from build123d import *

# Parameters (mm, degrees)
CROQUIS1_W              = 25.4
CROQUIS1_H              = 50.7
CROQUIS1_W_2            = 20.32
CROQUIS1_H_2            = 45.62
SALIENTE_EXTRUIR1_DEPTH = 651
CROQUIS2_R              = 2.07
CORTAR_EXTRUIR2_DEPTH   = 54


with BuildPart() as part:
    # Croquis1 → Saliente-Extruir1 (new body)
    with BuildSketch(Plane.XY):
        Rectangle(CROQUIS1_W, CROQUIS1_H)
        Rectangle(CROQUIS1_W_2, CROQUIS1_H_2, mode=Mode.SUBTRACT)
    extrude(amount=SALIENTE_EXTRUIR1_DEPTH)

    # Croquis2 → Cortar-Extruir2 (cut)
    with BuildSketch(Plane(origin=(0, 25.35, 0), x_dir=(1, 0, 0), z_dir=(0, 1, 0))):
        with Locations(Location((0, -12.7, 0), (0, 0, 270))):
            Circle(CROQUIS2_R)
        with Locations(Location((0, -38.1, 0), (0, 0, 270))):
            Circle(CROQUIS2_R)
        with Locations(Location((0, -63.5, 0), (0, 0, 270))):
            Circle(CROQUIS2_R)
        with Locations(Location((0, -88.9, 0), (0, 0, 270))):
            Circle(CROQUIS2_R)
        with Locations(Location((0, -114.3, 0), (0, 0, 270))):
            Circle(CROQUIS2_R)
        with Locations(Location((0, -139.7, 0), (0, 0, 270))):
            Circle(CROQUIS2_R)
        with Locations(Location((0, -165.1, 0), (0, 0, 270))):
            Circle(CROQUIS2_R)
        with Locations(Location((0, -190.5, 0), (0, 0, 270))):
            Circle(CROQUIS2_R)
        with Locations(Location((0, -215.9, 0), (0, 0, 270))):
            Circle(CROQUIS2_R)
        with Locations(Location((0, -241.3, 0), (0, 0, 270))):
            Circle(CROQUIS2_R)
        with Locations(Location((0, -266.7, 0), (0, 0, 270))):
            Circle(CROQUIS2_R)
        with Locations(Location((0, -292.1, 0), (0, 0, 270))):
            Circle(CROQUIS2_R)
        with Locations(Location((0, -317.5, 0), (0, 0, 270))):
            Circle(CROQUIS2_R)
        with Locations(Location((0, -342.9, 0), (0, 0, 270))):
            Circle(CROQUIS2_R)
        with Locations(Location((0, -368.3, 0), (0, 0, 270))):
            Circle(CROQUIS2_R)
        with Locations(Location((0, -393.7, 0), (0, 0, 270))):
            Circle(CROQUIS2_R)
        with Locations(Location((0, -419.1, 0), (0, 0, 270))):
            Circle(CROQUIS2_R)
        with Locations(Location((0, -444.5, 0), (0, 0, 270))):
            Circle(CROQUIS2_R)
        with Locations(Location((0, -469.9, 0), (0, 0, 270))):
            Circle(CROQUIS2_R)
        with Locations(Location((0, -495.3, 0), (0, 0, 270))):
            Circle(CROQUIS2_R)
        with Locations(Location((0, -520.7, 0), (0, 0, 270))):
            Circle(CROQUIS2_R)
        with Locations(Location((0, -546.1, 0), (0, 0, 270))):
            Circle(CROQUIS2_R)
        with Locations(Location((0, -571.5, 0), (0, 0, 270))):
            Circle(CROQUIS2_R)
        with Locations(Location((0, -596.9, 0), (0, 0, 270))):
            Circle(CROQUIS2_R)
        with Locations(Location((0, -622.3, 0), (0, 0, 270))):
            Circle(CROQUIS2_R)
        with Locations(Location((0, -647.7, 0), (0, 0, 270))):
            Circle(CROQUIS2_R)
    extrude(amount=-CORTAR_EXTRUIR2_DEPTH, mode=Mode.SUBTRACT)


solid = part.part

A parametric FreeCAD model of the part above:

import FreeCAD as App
import Part
import Sketcher

V = App.Vector


def add_polygon(sketch, points):
    """Adds a closed chain of lines whose ends are joined by coincident constraints."""
    first, n = sketch.GeometryCount, len(points)
    for a, b in zip(points, points[1:] + points[:1]):
        sketch.addGeometry(Part.LineSegment(App.Vector(*a, 0), App.Vector(*b, 0)), False)
    for i in range(n):
        sketch.addConstraint(Sketcher.Constraint("Coincident", first + i, 2, first + (i + 1) % n, 1))

doc = App.newDocument("Part")
params = doc.addObject("Spreadsheet::Sheet", "Params")
for row, (alias, value) in enumerate([
    ("sketch1_width", "25.4 mm"),
    ("sketch1_height", "50.7 mm"),
    ("sketch1_width2", "20.32 mm"),
    ("sketch1_height2", "45.62 mm"),
    ("pad1_length", "651 mm"),
    ("sketch2_diameter", "4.14 mm"),
    ("pocket1_length", "54 mm"),
], start=1):
    params.set(f"A{row}", alias)
    params.set(f"B{row}", "=" + value)
    params.setAlias(f"B{row}", alias)

body = doc.addObject("PartDesign::Body", "Body")

sketch1 = doc.addObject("Sketcher::SketchObject", "Sketch")
body.addObject(sketch1)
sketch1.AttachmentSupport = (doc.XY_Plane, [""])
sketch1.MapMode = "FlatFace"
add_polygon(sketch1, [(-12.7, 25.35), (-12.7, -25.35), (12.7, -25.35), (12.7, 25.35)])
add_polygon(sketch1, [(10.16, -22.81), (-10.16, -22.81), (-10.16, 22.81), (10.16, 22.81)])
sketch1.addConstraint([
    Sketcher.Constraint("Vertical", 0),
    Sketcher.Constraint("Horizontal", 1),
    Sketcher.Constraint("Vertical", 2),
    Sketcher.Constraint("Horizontal", 3),
    Sketcher.Constraint("Horizontal", 4),
    Sketcher.Constraint("Vertical", 5),
    Sketcher.Constraint("Horizontal", 6),
    Sketcher.Constraint("Vertical", 7),
    Sketcher.Constraint("Symmetric", 0, 2, 2, 2, -1, 1),
    Sketcher.Constraint("Symmetric", 4, 2, 6, 2, -1, 1),
    Sketcher.Constraint("DistanceX", 1, 1, 1, 2, 25.4),
    Sketcher.Constraint("DistanceY", 0, 2, 0, 1, 50.7),
    Sketcher.Constraint("DistanceX", 4, 2, 4, 1, 20.32),
    Sketcher.Constraint("DistanceY", 5, 1, 5, 2, 45.62),
])
sketch1.setExpression("Constraints[18]", "Params.sketch1_width")
sketch1.setExpression("Constraints[19]", "Params.sketch1_height")
sketch1.setExpression("Constraints[20]", "Params.sketch1_width2")
sketch1.setExpression("Constraints[21]", "Params.sketch1_height2")
pad1 = doc.addObject("PartDesign::Pad", "Pad")
body.addObject(pad1)
pad1.Profile = sketch1
pad1.setExpression("Length", "Params.pad1_length")

sketch2 = doc.addObject("Sketcher::SketchObject", "Sketch001")
body.addObject(sketch2)
sketch2.AttachmentSupport = (doc.XZ_Plane, [""])
sketch2.MapMode = "FlatFace"
sketch2.AttachmentOffset = App.Placement(V(0, 0, -25.35), App.Rotation())
sketch2.addGeometry([
    Part.Circle(V(0, 12.7, 0), V(0, 0, 1), 2.07),
    Part.Circle(V(0, 38.1, 0), V(0, 0, 1), 2.07),
    Part.Circle(V(0, 63.5, 0), V(0, 0, 1), 2.07),
    Part.Circle(V(0, 88.9, 0), V(0, 0, 1), 2.07),
    Part.Circle(V(0, 114.3, 0), V(0, 0, 1), 2.07),
    Part.Circle(V(0, 139.7, 0), V(0, 0, 1), 2.07),
    Part.Circle(V(0, 165.1, 0), V(0, 0, 1), 2.07),
    Part.Circle(V(0, 190.5, 0), V(0, 0, 1), 2.07),
    Part.Circle(V(0, 215.9, 0), V(0, 0, 1), 2.07),
    Part.Circle(V(0, 241.3, 0), V(0, 0, 1), 2.07),
    Part.Circle(V(0, 266.7, 0), V(0, 0, 1), 2.07),
    Part.Circle(V(0, 292.1, 0), V(0, 0, 1), 2.07),
    Part.Circle(V(0, 317.5, 0), V(0, 0, 1), 2.07),
    Part.Circle(V(0, 342.9, 0), V(0, 0, 1), 2.07),
    Part.Circle(V(0, 368.3, 0), V(0, 0, 1), 2.07),
    Part.Circle(V(0, 393.7, 0), V(0, 0, 1), 2.07),
    Part.Circle(V(0, 419.1, 0), V(0, 0, 1), 2.07),
    Part.Circle(V(0, 444.5, 0), V(0, 0, 1), 2.07),
    Part.Circle(V(0, 469.9, 0), V(0, 0, 1), 2.07),
    Part.Circle(V(0, 495.3, 0), V(0, 0, 1), 2.07),
    Part.Circle(V(0, 520.7, 0), V(0, 0, 1), 2.07),
    Part.Circle(V(0, 546.1, 0), V(0, 0, 1), 2.07),
    Part.Circle(V(0, 571.5, 0), V(0, 0, 1), 2.07),
    Part.Circle(V(0, 596.9, 0), V(0, 0, 1), 2.07),
    Part.Circle(V(0, 622.3, 0), V(0, 0, 1), 2.07),
    Part.Circle(V(0, 647.7, 0), V(0, 0, 1), 2.07),
], False)
sketch2.addConstraint([
    Sketcher.Constraint("Equal", 0, 1),
    Sketcher.Constraint("Equal", 1, 2),
    Sketcher.Constraint("Equal", 2, 3),
    Sketcher.Constraint("Equal", 3, 4),
    Sketcher.Constraint("Equal", 4, 5),
    Sketcher.Constraint("Equal", 5, 6),
    Sketcher.Constraint("Equal", 6, 7),
    Sketcher.Constraint("Equal", 7, 8),
    Sketcher.Constraint("Equal", 8, 9),
    Sketcher.Constraint("Equal", 9, 10),
    Sketcher.Constraint("Equal", 10, 11),
    Sketcher.Constraint("Equal", 11, 12),
    Sketcher.Constraint("Equal", 12, 13),
    Sketcher.Constraint("Equal", 13, 14),
    Sketcher.Constraint("Equal", 14, 15),
    Sketcher.Constraint("Equal", 15, 16),
    Sketcher.Constraint("Equal", 16, 17),
    Sketcher.Constraint("Equal", 17, 18),
    Sketcher.Constraint("Equal", 18, 19),
    Sketcher.Constraint("Equal", 19, 20),
    Sketcher.Constraint("Equal", 20, 21),
    Sketcher.Constraint("Equal", 21, 22),
    Sketcher.Constraint("Equal", 22, 23),
    Sketcher.Constraint("Equal", 23, 24),
    Sketcher.Constraint("Equal", 24, 25),
    Sketcher.Constraint("PointOnObject", 0, 3, -2),
    Sketcher.Constraint("PointOnObject", 1, 3, -2),
    Sketcher.Constraint("PointOnObject", 2, 3, -2),
    Sketcher.Constraint("PointOnObject", 3, 3, -2),
    Sketcher.Constraint("PointOnObject", 4, 3, -2),
    Sketcher.Constraint("PointOnObject", 5, 3, -2),
    Sketcher.Constraint("PointOnObject", 6, 3, -2),
    Sketcher.Constraint("PointOnObject", 7, 3, -2),
    Sketcher.Constraint("PointOnObject", 8, 3, -2),
    Sketcher.Constraint("PointOnObject", 9, 3, -2),
    Sketcher.Constraint("PointOnObject", 10, 3, -2),
    Sketcher.Constraint("PointOnObject", 11, 3, -2),
    Sketcher.Constraint("PointOnObject", 12, 3, -2),
    Sketcher.Constraint("PointOnObject", 13, 3, -2),
    Sketcher.Constraint("PointOnObject", 14, 3, -2),
    Sketcher.Constraint("PointOnObject", 15, 3, -2),
    Sketcher.Constraint("PointOnObject", 16, 3, -2),
    Sketcher.Constraint("PointOnObject", 17, 3, -2),
    Sketcher.Constraint("PointOnObject", 18, 3, -2),
    Sketcher.Constraint("PointOnObject", 19, 3, -2),
    Sketcher.Constraint("PointOnObject", 20, 3, -2),
    Sketcher.Constraint("PointOnObject", 21, 3, -2),
    Sketcher.Constraint("PointOnObject", 22, 3, -2),
    Sketcher.Constraint("PointOnObject", 23, 3, -2),
    Sketcher.Constraint("PointOnObject", 24, 3, -2),
    Sketcher.Constraint("PointOnObject", 25, 3, -2),
    Sketcher.Constraint("Diameter", 0, 4.14),
    Sketcher.Constraint("DistanceY", 0, 3, 5, 3, 127.0),
    Sketcher.Constraint("DistanceY", 1, 3, 6, 3, 127.0),
    Sketcher.Constraint("DistanceY", 2, 3, 7, 3, 127.0),
    Sketcher.Constraint("DistanceY", 3, 3, 8, 3, 127.0),
    Sketcher.Constraint("DistanceY", 4, 3, 9, 3, 127.0),
    Sketcher.Constraint("DistanceY", 5, 3, 10, 3, 127.0),
    Sketcher.Constraint("DistanceY", 6, 3, 11, 3, 127.0),
    Sketcher.Constraint("DistanceY", 7, 3, 12, 3, 127.0),
    Sketcher.Constraint("DistanceY", 8, 3, 13, 3, 127.0),
    Sketcher.Constraint("DistanceY", 9, 3, 14, 3, 127.0),
    Sketcher.Constraint("DistanceY", 10, 3, 15, 3, 127.0),
    Sketcher.Constraint("DistanceY", 11, 3, 16, 3, 127.0),
    Sketcher.Constraint("DistanceY", 12, 3, 17, 3, 127.0),
    Sketcher.Constraint("DistanceY", 13, 3, 18, 3, 127.0),
    Sketcher.Constraint("DistanceY", 14, 3, 19, 3, 127.0),
    Sketcher.Constraint("DistanceY", 15, 3, 20, 3, 127.0),
    Sketcher.Constraint("DistanceY", 16, 3, 21, 3, 127.0),
    Sketcher.Constraint("DistanceY", 17, 3, 22, 3, 127.0),
    Sketcher.Constraint("DistanceY", 18, 3, 23, 3, 127.0),
    Sketcher.Constraint("DistanceY", 19, 3, 24, 3, 127.0),
    Sketcher.Constraint("DistanceY", 20, 3, 25, 3, 127.0),
    Sketcher.Constraint("DistanceY", -1, 1, 0, 3, 12.7),
    Sketcher.Constraint("DistanceY", -1, 1, 1, 3, 38.1),
    Sketcher.Constraint("DistanceY", -1, 1, 2, 3, 63.5),
    Sketcher.Constraint("DistanceY", -1, 1, 3, 3, 88.9),
    Sketcher.Constraint("DistanceY", -1, 1, 4, 3, 114.3),
])
sketch2.setExpression("Constraints[51]", "Params.sketch2_diameter")
pocket1 = doc.addObject("PartDesign::Pocket", "Pocket")
body.addObject(pocket1)
pocket1.Profile = sketch2
pocket1.setExpression("Length", "Params.pocket1_length")
pocket1.Reversed = True

doc.recompute()
